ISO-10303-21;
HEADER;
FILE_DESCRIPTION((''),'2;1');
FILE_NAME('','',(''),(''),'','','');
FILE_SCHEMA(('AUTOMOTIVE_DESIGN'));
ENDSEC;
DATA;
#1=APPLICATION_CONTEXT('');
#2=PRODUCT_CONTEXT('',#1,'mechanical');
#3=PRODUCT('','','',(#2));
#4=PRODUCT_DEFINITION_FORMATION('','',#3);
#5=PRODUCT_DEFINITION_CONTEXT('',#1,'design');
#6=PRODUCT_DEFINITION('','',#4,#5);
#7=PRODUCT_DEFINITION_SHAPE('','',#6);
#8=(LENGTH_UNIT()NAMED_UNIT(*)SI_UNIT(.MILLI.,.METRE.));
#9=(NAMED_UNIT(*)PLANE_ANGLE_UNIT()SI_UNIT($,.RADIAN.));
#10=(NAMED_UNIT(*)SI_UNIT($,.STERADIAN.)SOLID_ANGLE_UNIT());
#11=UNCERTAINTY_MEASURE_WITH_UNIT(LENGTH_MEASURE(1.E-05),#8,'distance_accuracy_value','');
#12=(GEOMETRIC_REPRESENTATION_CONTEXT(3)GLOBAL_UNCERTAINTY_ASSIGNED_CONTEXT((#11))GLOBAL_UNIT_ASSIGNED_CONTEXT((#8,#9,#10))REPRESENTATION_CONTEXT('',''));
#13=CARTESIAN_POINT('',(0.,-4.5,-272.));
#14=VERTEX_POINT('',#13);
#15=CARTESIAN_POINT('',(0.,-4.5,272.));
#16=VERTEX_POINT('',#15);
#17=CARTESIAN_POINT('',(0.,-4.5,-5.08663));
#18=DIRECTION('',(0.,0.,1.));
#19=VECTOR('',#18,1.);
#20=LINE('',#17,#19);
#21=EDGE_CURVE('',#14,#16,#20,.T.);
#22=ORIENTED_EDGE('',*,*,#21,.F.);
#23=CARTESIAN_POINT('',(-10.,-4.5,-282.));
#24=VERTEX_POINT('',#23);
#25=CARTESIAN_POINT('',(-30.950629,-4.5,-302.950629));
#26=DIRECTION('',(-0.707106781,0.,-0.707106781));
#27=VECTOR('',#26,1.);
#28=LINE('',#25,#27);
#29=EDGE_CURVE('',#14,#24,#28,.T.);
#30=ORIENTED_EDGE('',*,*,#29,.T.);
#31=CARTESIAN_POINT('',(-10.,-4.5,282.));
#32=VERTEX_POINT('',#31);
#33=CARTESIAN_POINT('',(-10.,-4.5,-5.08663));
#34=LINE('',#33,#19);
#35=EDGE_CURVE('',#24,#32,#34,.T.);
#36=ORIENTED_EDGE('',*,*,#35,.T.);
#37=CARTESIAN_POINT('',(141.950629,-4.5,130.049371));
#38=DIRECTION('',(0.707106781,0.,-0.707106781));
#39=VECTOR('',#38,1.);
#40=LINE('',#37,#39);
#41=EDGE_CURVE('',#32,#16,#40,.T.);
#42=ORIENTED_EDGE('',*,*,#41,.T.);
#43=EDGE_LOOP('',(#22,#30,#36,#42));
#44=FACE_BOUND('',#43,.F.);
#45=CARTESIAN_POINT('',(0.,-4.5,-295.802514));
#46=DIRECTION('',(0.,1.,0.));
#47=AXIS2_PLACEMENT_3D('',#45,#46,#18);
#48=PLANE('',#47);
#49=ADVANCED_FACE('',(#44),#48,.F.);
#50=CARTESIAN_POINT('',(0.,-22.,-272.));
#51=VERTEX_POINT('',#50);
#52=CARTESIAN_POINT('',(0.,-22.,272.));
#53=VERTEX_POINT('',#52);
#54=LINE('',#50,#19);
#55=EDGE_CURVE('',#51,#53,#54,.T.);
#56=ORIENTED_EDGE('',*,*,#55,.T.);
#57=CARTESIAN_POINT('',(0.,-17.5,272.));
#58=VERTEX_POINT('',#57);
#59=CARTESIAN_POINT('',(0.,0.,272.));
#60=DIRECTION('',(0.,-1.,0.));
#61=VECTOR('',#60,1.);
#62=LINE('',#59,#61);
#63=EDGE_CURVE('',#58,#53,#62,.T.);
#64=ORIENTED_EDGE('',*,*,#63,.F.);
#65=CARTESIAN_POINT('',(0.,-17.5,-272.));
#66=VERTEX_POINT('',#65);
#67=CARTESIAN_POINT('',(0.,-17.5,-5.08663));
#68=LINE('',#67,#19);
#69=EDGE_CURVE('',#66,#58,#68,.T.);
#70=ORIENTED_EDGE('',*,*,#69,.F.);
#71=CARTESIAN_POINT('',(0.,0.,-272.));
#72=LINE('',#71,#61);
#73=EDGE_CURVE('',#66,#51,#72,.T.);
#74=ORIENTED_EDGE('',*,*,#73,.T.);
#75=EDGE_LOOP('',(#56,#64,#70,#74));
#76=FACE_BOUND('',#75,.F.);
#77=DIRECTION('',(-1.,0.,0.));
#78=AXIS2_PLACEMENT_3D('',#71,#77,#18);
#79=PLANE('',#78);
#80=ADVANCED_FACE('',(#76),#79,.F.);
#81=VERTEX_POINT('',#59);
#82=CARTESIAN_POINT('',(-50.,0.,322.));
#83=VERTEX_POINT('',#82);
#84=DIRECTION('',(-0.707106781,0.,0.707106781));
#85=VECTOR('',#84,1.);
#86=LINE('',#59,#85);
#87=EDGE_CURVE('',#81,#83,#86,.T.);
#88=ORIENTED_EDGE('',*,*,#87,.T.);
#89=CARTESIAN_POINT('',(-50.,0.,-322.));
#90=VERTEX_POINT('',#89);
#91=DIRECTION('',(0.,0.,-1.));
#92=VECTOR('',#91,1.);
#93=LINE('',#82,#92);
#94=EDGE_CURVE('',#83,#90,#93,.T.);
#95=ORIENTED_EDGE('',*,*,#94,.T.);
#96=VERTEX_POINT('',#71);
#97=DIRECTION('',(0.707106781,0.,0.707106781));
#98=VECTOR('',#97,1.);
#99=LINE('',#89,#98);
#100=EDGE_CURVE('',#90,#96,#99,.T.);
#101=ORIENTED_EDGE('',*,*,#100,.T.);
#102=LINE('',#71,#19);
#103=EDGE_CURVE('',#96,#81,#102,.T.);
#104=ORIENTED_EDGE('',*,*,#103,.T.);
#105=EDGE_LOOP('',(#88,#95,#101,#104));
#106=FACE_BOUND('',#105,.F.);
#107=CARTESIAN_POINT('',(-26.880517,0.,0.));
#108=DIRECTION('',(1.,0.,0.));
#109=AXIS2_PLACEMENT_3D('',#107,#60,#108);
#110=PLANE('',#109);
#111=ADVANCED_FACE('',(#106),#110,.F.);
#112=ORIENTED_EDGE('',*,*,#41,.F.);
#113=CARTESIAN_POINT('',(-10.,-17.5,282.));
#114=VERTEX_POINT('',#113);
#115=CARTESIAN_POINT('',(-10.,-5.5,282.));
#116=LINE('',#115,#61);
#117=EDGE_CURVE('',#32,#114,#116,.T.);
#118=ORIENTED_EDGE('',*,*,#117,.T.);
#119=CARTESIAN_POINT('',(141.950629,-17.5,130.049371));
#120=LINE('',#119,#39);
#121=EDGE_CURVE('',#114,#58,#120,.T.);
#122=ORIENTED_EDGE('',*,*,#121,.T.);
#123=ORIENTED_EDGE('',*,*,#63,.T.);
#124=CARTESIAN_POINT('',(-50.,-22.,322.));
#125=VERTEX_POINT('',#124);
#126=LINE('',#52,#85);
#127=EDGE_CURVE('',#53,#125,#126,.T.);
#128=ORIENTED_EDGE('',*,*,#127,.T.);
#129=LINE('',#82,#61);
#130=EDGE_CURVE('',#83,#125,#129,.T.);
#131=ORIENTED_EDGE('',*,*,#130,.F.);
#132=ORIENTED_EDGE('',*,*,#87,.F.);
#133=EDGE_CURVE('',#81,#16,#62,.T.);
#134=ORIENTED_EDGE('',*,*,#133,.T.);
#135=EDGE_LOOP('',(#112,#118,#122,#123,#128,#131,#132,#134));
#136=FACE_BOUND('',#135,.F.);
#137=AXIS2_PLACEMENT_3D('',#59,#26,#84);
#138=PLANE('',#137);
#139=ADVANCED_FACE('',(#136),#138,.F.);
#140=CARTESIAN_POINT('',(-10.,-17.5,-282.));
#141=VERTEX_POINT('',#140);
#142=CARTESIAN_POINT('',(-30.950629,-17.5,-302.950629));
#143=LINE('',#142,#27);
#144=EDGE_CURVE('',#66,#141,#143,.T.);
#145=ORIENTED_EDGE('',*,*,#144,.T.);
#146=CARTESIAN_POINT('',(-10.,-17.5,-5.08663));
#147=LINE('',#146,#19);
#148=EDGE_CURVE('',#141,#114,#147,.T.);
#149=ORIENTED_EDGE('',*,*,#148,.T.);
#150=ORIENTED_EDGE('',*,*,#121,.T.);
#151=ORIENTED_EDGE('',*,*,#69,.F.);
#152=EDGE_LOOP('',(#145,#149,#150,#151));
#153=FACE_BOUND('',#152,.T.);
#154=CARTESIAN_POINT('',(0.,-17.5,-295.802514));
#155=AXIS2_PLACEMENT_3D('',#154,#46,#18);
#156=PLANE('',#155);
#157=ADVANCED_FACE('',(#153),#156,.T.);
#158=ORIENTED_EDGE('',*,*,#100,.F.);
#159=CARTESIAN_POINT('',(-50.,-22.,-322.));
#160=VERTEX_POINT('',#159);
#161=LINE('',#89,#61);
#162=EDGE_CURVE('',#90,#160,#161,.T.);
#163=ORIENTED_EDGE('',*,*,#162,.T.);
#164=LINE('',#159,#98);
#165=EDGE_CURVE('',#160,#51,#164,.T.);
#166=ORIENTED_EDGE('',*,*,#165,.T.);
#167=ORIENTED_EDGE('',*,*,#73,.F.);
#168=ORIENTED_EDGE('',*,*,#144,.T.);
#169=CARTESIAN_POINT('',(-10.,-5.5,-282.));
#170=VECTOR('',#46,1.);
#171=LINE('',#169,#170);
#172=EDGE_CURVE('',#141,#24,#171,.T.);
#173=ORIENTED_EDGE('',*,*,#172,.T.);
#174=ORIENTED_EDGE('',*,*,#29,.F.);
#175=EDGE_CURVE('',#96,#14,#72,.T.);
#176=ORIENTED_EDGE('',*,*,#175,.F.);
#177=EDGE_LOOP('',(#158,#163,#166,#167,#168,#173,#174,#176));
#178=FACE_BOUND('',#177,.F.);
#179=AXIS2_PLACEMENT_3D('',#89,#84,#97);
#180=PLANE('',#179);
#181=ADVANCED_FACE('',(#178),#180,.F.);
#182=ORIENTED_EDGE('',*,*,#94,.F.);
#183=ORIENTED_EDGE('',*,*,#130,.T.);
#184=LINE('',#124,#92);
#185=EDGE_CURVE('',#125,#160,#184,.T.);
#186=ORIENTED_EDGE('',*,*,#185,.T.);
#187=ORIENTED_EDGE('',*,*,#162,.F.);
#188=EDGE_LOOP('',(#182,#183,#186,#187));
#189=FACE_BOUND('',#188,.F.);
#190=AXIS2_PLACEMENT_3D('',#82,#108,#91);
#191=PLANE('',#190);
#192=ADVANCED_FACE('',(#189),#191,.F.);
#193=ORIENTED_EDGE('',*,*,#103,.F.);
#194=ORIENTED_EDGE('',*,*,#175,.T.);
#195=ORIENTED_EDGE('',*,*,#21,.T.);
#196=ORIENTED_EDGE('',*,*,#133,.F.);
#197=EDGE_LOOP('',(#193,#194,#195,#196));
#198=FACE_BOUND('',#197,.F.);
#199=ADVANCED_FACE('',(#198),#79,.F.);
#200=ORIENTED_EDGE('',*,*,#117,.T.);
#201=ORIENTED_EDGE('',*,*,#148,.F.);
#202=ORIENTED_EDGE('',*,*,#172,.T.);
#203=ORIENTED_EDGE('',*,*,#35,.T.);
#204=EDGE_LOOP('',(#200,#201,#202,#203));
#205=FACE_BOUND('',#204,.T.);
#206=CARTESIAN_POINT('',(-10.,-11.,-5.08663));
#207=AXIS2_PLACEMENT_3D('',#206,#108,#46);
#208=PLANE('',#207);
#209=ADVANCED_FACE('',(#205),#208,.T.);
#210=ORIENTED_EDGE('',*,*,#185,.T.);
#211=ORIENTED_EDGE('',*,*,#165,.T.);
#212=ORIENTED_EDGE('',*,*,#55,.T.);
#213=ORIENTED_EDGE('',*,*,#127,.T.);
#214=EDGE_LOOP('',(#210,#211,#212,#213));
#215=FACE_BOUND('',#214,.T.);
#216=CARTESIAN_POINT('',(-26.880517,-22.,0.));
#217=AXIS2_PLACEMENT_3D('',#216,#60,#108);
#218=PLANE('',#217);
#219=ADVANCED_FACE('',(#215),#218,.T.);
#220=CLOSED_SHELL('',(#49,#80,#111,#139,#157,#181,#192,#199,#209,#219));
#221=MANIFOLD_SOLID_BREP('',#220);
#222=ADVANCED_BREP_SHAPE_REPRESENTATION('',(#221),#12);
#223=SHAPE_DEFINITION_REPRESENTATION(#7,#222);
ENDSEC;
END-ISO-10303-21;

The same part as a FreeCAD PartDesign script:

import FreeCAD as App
import Part
import Sketcher

V = App.Vector
Q = App.Units.Quantity


def add_polygon(sketch, points):
    """Adds a closed chain of lines whose ends are joined by coincident constraints."""
    first, n = sketch.GeometryCount, len(points)
    for a, b in zip(points, points[1:] + points[:1]):
        sketch.addGeometry(Part.LineSegment(App.Vector(*a, 0), App.Vector(*b, 0)), False)
    for i in range(n):
        sketch.addConstraint(Sketcher.Constraint("Coincident", first + i, 2, first + (i + 1) % n, 1))

doc = App.newDocument("Part")
body = doc.addObject("PartDesign::Body", "Body")

sketch1 = body.newObject("Sketcher::SketchObject", "Sketch")
sketch1.AttachmentSupport = (doc.getObject("XZ_Plane"), [""])
sketch1.MapMode = "FlatFace"
add_polygon(sketch1, [(0, 272), (-50, 322), (-50, -322), (0, -272)])
sketch1.addConstraint([
    Sketcher.Constraint("Vertical", 1),
    Sketcher.Constraint("Vertical", 3),
    Sketcher.Constraint("Symmetric", 2, 2, 3, 2, -1, 1),
    Sketcher.Constraint("Perpendicular", 0, 2),
    Sketcher.Constraint("Equal", 0, 2),
    Sketcher.Constraint("DistanceY", 1, 2, 1, 1, Q("644 mm")),
    Sketcher.Constraint("DistanceY", 3, 1, 3, 2, Q("544 mm")),
])
pad1 = body.newObject("PartDesign::Pad", "Pad")
pad1.Profile = sketch1
pad1.Length = 22

sketch2 = body.newObject("Sketcher::SketchObject", "Sketch001")
sketch2.AttachmentSupport = (doc.getObject("YZ_Plane"), [""])
sketch2.MapMode = "FlatFace"
add_polygon(sketch2, [(-18, 286), (-18, -296), (-4, -296), (-4, 286)])
sketch2.addConstraint([
    Sketcher.Constraint("Vertical", 0),
    Sketcher.Constraint("Horizontal", 1),
    Sketcher.Constraint("Vertical", 2),
    Sketcher.Constraint("Horizontal", 3),
    Sketcher.Constraint("DistanceX", 1, 1, 1, 2, Q("13 mm")),
    Sketcher.Constraint("DistanceX", 0, 2, -1, 1, Q("17.5 mm")),
    Sketcher.Constraint("DistanceY", 0, 2, 0, 1, Q("581.431769 mm")),
    Sketcher.Constraint("DistanceY", 0, 2, -1, 1, Q("295.802514 mm")),
])
pocket1 = body.newObject("PartDesign::Pocket", "Pocket")
pocket1.Profile = sketch2
pocket1.Length = 10

doc.recompute()
